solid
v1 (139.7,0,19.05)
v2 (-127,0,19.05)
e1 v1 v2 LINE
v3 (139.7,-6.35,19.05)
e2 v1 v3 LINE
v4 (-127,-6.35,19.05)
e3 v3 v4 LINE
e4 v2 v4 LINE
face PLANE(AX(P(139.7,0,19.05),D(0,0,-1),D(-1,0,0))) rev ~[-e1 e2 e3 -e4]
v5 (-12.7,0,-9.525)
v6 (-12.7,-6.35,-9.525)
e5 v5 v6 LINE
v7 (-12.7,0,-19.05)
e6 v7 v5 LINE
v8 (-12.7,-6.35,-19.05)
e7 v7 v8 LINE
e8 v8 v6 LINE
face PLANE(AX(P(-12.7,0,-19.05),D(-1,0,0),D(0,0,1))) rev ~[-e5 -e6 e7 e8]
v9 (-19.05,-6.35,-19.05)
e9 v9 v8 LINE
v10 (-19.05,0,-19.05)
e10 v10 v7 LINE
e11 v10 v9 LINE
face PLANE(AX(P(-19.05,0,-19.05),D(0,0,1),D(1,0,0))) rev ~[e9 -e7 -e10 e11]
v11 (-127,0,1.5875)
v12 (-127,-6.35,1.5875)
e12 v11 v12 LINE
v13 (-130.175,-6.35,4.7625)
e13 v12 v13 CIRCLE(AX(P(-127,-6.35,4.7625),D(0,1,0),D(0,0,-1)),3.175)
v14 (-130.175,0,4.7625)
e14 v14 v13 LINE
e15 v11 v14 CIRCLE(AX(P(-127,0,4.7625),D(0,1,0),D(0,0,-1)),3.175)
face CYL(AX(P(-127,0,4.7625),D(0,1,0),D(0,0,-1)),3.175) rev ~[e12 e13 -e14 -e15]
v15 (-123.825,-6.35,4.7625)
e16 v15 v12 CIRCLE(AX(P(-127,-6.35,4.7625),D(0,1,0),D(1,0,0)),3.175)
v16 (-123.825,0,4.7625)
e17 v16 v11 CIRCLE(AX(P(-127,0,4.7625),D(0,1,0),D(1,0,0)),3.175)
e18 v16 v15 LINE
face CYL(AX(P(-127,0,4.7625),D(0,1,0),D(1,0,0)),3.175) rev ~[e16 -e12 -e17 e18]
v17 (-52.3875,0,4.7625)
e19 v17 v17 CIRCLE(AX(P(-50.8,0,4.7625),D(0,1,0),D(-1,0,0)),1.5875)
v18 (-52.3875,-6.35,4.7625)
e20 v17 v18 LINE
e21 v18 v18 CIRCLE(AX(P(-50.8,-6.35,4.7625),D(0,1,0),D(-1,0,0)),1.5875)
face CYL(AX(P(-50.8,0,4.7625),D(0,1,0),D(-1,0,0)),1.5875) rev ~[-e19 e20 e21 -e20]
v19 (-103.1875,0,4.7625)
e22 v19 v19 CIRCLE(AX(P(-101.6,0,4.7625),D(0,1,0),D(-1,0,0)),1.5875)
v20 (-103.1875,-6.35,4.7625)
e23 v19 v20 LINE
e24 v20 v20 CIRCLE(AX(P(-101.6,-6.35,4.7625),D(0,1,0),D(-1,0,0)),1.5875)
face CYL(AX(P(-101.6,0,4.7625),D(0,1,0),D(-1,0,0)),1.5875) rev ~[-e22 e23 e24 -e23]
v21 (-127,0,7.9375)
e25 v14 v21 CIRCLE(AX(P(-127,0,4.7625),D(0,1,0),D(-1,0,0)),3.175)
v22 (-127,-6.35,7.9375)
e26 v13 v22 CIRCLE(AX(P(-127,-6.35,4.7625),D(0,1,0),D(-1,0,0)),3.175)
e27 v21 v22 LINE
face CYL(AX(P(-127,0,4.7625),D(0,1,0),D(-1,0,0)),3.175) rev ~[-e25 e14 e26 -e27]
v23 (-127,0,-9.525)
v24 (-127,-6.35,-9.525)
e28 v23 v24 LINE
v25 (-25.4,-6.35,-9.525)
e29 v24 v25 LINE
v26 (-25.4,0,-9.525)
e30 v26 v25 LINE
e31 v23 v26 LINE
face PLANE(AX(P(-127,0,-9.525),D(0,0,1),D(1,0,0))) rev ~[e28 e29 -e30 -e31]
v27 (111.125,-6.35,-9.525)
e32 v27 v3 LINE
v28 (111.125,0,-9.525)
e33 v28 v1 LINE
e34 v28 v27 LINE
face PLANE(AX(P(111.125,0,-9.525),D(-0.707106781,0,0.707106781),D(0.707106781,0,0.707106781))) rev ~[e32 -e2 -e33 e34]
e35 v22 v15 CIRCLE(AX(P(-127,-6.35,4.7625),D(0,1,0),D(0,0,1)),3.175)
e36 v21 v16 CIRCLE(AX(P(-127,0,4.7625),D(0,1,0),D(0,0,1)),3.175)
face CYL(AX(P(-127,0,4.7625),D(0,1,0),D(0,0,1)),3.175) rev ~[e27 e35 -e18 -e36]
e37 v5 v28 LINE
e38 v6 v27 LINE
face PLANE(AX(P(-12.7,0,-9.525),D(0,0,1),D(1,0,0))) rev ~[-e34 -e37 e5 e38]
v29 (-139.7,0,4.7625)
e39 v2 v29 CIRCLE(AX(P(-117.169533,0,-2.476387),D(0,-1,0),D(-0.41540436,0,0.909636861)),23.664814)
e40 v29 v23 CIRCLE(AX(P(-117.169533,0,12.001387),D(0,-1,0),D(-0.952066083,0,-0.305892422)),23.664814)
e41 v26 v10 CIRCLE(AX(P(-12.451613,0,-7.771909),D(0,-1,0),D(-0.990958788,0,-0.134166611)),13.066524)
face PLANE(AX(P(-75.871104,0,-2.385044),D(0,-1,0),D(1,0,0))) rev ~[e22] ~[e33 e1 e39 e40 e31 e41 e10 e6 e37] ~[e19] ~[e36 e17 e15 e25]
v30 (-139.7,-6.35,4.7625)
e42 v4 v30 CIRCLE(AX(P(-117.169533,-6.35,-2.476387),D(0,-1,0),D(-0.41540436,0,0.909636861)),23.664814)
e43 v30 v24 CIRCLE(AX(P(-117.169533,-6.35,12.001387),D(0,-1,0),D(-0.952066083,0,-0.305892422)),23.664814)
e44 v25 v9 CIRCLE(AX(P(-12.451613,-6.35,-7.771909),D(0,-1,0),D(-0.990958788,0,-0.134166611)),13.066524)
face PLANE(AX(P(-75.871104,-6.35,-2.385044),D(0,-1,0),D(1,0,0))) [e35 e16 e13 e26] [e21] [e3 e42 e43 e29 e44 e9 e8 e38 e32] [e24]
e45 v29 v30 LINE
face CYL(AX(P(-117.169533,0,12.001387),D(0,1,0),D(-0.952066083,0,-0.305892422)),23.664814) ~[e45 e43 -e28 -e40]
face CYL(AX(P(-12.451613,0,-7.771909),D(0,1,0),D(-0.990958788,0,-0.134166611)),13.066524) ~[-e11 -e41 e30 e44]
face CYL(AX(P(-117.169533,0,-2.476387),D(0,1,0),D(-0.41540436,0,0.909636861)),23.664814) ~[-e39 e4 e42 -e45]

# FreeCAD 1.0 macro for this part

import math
import FreeCAD as App
import Part
import Sketcher
from FreeCAD import Vector
Q = App.Units.Quantity

doc = App.newDocument("Part")
body = doc.addObject("PartDesign::Body", "Body")

# Sketch on XZ plane
sketch1 = doc.addObject("Sketcher::SketchObject", "Sketch")
body.addObject(sketch1)
sketch1.AttachmentSupport = (doc.XZ_Plane, [""])
sketch1.MapMode = "FlatFace"
sketch1.addGeometry(Part.LineSegment(Vector(-127, -9.5, 0), Vector(-25.4, -9.5, 0)), False)
sketch1.addGeometry(Part.ArcOfCircle(Part.Circle(Vector(-12.5, -7.8, 0), Vector(0, 0, 1), 13.1), math.radians(-172), math.radians(-120)), False)
sketch1.addGeometry(Part.LineSegment(Vector(-19.1, -19.1, 0), Vector(-12.7, -19.1, 0)), False)
sketch1.addGeometry(Part.LineSegment(Vector(-12.7, -19.1, 0), Vector(-12.7, -9.5, 0)), False)
sketch1.addGeometry(Part.LineSegment(Vector(-12.7, -9.5, 0), Vector(111.1, -9.5, 0)), False)
sketch1.addGeometry(Part.LineSegment(Vector(111.1, -9.5, 0), Vector(139.7, 19.1, 0)), False)
sketch1.addGeometry(Part.LineSegment(Vector(139.7, 19.1, 0), Vector(-127, 19.1, 0)), False)
sketch1.addGeometry(Part.ArcOfCircle(Part.Circle(Vector(-117.2, -2.5, 0), Vector(0, 0, 1), 23.7), math.radians(115), math.radians(162)), False)
sketch1.addGeometry(Part.ArcOfCircle(Part.Circle(Vector(-117.2, 12, 0), Vector(0, 0, 1), 23.7), math.radians(-162), math.radians(-115)), False)
sketch1.addGeometry(Part.ArcOfCircle(Part.Circle(Vector(-127, 4.8, 0), Vector(0, 0, 1), 3.2), math.radians(90), math.radians(180)), False)
sketch1.addGeometry(Part.ArcOfCircle(Part.Circle(Vector(-127, 4.8, 0), Vector(0, 0, 1), 3.2), math.radians(0), math.radians(90)), False)
sketch1.addGeometry(Part.ArcOfCircle(Part.Circle(Vector(-127, 4.8, 0), Vector(0, 0, 1), 3.2), math.radians(-90), math.radians(0)), False)
sketch1.addGeometry(Part.ArcOfCircle(Part.Circle(Vector(-127, 4.8, 0), Vector(0, 0, 1), 3.2), math.radians(180), math.radians(270)), False)
sketch1.addGeometry(Part.Circle(Vector(-50.8, 4.8, 0), Vector(0, 0, 1), 1.6), False)
sketch1.addGeometry(Part.Circle(Vector(-101.6, 4.8, 0), Vector(0, 0, 1), 1.6), False)
sketch1.addConstraint(Sketcher.Constraint("Coincident", 0, 2, 1, 1))
sketch1.addConstraint(Sketcher.Constraint("Coincident", 1, 2, 2, 1))
sketch1.addConstraint(Sketcher.Constraint("Coincident", 2, 2, 3, 1))
sketch1.addConstraint(Sketcher.Constraint("Coincident", 3, 2, 4, 1))
sketch1.addConstraint(Sketcher.Constraint("Coincident", 4, 2, 5, 1))
sketch1.addConstraint(Sketcher.Constraint("Coincident", 5, 2, 6, 1))
sketch1.addConstraint(Sketcher.Constraint("Coincident", 6, 2, 7, 1))
sketch1.addConstraint(Sketcher.Constraint("Coincident", 7, 2, 8, 1))
sketch1.addConstraint(Sketcher.Constraint("Coincident", 8, 2, 0, 1))
sketch1.addConstraint(Sketcher.Constraint("Tangent", 9, 1, 10, 2))
sketch1.addConstraint(Sketcher.Constraint("Tangent", 10, 1, 11, 2))
sketch1.addConstraint(Sketcher.Constraint("Tangent", 11, 1, 12, 2))
sketch1.addConstraint(Sketcher.Constraint("Tangent", 12, 1, 9, 2))
sketch1.addConstraint(Sketcher.Constraint("Horizontal", 0))
sketch1.addConstraint(Sketcher.Constraint("Horizontal", 2))
sketch1.addConstraint(Sketcher.Constraint("Vertical", 3))
sketch1.addConstraint(Sketcher.Constraint("Horizontal", 4))
sketch1.addConstraint(Sketcher.Constraint("Horizontal", 6))
sketch1.addConstraint(Sketcher.Constraint("Equal", 7, 8))
sketch1.addConstraint(Sketcher.Constraint("Equal", 9, 10))
sketch1.addConstraint(Sketcher.Constraint("Equal", 13, 14))
sketch1.addConstraint(Sketcher.Constraint("Horizontal", 12, 3, 13, 3))
sketch1.addConstraint(Sketcher.Constraint("Horizontal", 13, 3, 14, 3))
sketch1.addConstraint(Sketcher.Constraint("Horizontal", 0, 2, 3, 2))
sketch1.addConstraint(Sketcher.Constraint("Horizontal", 14, 3, 7, 2))
sketch1.addConstraint(Sketcher.Constraint("Horizontal", 7, 2, 10, 1))
sketch1.addConstraint(Sketcher.Constraint("Horizontal", 10, 1, 12, 1))
sketch1.addConstraint(Sketcher.Constraint("Vertical", 7, 3, 8, 3))
sketch1.addConstraint(Sketcher.Constraint("Vertical", 12, 3, 6, 2))
sketch1.addConstraint(Sketcher.Constraint("Vertical", 6, 2, 8, 2))
sketch1.addConstraint(Sketcher.Constraint("Vertical", 8, 2, 9, 1))
sketch1.addConstraint(Sketcher.Constraint("Vertical", 9, 1, 11, 1))
sketch1.addConstraint(Sketcher.Constraint("DistanceX", 0, 1, 0, 2, Q("4 in")))
sketch1.addConstraint(Sketcher.Constraint("Diameter", 13, Q("0.125 in")))
sketch1.addConstraint(Sketcher.Constraint("DistanceX", 6, 2, 6, 1, Q("10.5 in")))
sketch1.addConstraint(Sketcher.Constraint("DistanceX", 9, 3, -1, 1, Q("5 in")))
sketch1.addConstraint(Sketcher.Constraint("DistanceX", 13, 3, -1, 1, Q("2 in")))
sketch1.addConstraint(Sketcher.Constraint("DistanceX", 14, 3, -1, 1, Q("4 in")))
sketch1.addConstraint(Sketcher.Constraint("Angle", 5, Q("45 deg")))
sketch1.addConstraint(Sketcher.Constraint("Radius", 9, Q("0.125 in")))
sketch1.addConstraint(Sketcher.Constraint("DistanceX", 3, 2, 5, 2, Q("6 in")))
sketch1.addConstraint(Sketcher.Constraint("DistanceX", 2, 1, 2, 2, Q("0.25 in")))
sketch1.addConstraint(Sketcher.Constraint("DistanceX", 7, 2, -1, 1, Q("5.5 in")))
sketch1.addConstraint(Sketcher.Constraint("DistanceY", 2, 2, 5, 2, Q("1.5 in")))
sketch1.addConstraint(Sketcher.Constraint("DistanceX", 4, 1, 4, 2, Q("4.875 in")))
sketch1.addConstraint(Sketcher.Constraint("DistanceY", 1, 2, -1, 1, Q("0.75 in")))
sketch1.addConstraint(Sketcher.Constraint("Radius", 1, 13.066524))
sketch1.addConstraint(Sketcher.Constraint("Radius", 7, 23.664814))
pad1 = doc.addObject("PartDesign::Pad", "Pad")
body.addObject(pad1)
pad1.Profile = sketch1
pad1.Length = Q("0.25 in")

doc.recompute()
